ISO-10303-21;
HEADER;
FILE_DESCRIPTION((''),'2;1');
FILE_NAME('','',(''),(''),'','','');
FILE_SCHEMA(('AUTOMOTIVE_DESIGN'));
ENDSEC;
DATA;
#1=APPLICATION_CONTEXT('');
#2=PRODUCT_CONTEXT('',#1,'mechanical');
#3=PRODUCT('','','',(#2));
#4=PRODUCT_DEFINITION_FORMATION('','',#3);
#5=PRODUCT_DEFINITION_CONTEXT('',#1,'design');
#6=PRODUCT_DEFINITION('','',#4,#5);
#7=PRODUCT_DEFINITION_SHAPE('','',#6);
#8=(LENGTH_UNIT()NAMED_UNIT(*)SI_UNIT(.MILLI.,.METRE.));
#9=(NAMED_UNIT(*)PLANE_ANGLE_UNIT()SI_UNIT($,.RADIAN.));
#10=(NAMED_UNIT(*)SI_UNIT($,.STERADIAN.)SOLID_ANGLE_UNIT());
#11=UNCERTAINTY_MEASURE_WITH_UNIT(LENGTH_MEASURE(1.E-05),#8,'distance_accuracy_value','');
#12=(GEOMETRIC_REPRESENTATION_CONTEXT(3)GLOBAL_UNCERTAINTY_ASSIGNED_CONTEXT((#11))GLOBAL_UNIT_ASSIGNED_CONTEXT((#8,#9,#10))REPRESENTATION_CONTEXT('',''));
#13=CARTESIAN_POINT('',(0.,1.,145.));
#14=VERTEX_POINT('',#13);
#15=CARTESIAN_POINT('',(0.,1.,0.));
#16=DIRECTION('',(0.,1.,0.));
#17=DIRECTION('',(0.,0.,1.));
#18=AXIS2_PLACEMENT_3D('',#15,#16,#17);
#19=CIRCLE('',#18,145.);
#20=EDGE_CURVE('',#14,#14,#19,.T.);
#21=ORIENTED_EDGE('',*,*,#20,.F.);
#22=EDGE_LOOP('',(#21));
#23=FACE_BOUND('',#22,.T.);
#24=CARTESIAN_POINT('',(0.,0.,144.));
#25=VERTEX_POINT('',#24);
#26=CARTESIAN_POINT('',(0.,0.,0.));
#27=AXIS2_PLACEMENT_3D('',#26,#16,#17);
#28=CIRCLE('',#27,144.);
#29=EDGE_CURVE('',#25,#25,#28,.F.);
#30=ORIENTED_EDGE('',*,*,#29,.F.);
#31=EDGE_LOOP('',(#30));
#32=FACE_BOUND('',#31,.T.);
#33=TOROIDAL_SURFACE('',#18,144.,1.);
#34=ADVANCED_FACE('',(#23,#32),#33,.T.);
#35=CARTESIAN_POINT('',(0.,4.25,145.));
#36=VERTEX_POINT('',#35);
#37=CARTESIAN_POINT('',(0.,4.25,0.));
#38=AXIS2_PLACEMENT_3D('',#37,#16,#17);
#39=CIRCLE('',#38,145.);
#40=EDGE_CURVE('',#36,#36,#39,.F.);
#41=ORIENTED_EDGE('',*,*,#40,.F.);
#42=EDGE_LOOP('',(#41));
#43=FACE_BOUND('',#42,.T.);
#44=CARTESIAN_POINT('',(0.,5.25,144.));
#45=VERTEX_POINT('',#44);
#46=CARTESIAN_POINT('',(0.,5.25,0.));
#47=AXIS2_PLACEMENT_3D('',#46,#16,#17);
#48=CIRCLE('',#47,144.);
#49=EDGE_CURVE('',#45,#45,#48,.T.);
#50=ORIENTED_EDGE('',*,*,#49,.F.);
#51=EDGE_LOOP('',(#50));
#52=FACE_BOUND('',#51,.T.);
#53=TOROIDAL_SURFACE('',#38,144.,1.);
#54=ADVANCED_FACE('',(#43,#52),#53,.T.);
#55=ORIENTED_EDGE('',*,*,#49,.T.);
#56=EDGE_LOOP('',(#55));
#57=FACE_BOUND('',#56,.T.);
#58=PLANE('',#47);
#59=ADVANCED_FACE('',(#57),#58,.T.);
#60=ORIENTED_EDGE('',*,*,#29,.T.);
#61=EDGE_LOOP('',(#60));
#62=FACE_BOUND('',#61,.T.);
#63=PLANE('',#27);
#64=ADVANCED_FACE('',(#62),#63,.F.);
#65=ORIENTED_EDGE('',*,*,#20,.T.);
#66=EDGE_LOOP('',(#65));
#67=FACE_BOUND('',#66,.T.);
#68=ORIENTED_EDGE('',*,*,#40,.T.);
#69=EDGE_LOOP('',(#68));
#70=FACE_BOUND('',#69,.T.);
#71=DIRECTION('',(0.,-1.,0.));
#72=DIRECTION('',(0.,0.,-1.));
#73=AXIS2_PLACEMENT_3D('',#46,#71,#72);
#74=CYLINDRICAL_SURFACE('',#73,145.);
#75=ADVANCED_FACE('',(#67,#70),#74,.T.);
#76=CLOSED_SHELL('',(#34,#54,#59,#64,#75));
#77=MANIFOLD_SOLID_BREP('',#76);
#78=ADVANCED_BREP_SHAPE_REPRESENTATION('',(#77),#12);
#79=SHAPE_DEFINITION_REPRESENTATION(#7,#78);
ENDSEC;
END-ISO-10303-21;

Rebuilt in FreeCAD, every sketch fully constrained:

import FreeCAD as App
import Part
import Sketcher
Q = App.Units.Quantity


def edges_at(feature, points):
    """Names of the edges that pass closest to the given points."""
    edges = feature.Shape.Edges
    near = lambda p: min(range(len(edges)), key=lambda i: edges[i].distToShape(Part.Vertex(*p))[0])
    return sorted({f"Edge{near(p) + 1}" for p in points})

doc = App.newDocument("Part")
body = doc.addObject("PartDesign::Body", "Body")

sketch1 = body.newObject("Sketcher::SketchObject", "Sketch")
sketch1.AttachmentSupport = (doc.getObject("XZ_Plane"), [""])
sketch1.MapMode = "FlatFace"
sketch1.addGeometry(Part.Circle(App.Vector(0, 0, 0), App.Vector(0, 0, 1), 145), False)
sketch1.addConstraint([
    Sketcher.Constraint("Coincident", 0, 3, -1, 1),
    Sketcher.Constraint("Diameter", 0, Q("290 mm")),
])
pad1 = body.newObject("PartDesign::Pad", "Pad")
pad1.Profile = sketch1
pad1.Length = 5.25
pad1.Reversed = True
doc.recompute()

fillet = body.newObject("PartDesign::Fillet", "Fillet")
fillet.Base = (pad1, edges_at(pad1, [(-145, 0, 0), (-145, 5.25, 0)]))
fillet.Radius = 1

doc.recompute()
